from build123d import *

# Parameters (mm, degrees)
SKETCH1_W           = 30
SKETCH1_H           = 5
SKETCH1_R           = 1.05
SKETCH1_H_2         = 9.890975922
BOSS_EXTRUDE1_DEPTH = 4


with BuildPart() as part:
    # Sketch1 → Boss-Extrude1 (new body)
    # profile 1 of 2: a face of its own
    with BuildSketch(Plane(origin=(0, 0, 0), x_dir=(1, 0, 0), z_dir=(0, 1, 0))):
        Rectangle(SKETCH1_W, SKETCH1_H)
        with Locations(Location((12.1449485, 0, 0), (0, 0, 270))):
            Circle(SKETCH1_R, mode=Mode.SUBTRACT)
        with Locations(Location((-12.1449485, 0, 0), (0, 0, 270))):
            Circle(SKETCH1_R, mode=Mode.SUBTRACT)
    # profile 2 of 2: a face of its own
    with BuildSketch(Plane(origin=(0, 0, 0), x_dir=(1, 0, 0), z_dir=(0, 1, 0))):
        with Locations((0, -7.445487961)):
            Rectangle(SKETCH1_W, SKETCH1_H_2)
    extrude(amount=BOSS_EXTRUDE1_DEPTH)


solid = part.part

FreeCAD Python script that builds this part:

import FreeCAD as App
import Part
import Sketcher
from FreeCAD import Vector
Q = App.Units.Quantity

doc = App.newDocument("Part")
body = doc.addObject("PartDesign::Body", "Body")

# Sketch on XZ plane
sketch1 = body.newObject("Sketcher::SketchObject", "Sketch")
sketch1.AttachmentSupport = (doc.getObject("XZ_Plane"), [""])
sketch1.MapMode = "FlatFace"
sketch1.addGeometry(Part.LineSegment(Vector(-15, -2.5, 0), Vector(-15, 12.4, 0)), False)
sketch1.addGeometry(Part.LineSegment(Vector(-15, 12.4, 0), Vector(15, 12.4, 0)), False)
sketch1.addGeometry(Part.LineSegment(Vector(15, 12.4, 0), Vector(15, -2.5, 0)), False)
sketch1.addGeometry(Part.LineSegment(Vector(15, -2.5, 0), Vector(-15, -2.5, 0)), False)
sketch1.addGeometry(Part.Circle(Vector(-12.1, 0, 0), Vector(0, 0, 1), 1.1), False)
sketch1.addGeometry(Part.Circle(Vector(12.1, 0, 0), Vector(0, 0, 1), 1.1), False)
sketch1.addConstraint(Sketcher.Constraint("Coincident", 0, 2, 1, 1))
sketch1.addConstraint(Sketcher.Constraint("Coincident", 1, 2, 2, 1))
sketch1.addConstraint(Sketcher.Constraint("Coincident", 2, 2, 3, 1))
sketch1.addConstraint(Sketcher.Constraint("Coincident", 3, 2, 0, 1))
sketch1.addConstraint(Sketcher.Constraint("Vertical", 0))
sketch1.addConstraint(Sketcher.Constraint("Horizontal", 1))
sketch1.addConstraint(Sketcher.Constraint("Vertical", 2))
sketch1.addConstraint(Sketcher.Constraint("Horizontal", 3))
sketch1.addConstraint(Sketcher.Constraint("Equal", 4, 5))
sketch1.addConstraint(Sketcher.Constraint("Symmetric", 4, 3, 5, 3, -1, 1))
sketch1.addConstraint(Sketcher.Constraint("PointOnObject", 4, 3, -1))
sketch1.addConstraint(Sketcher.Constraint("Diameter", 4, Q("2.1 mm")))
sketch1.addConstraint(Sketcher.Constraint("DistanceX", 1, 1, 1, 2, Q("30 mm")))
sketch1.addConstraint(Sketcher.Constraint("DistanceX", 0, 2, -1, 1, Q("15 mm")))
sketch1.addConstraint(Sketcher.Constraint("DistanceY", 2, 2, -1, 1, Q("2.5 mm")))
sketch1.addConstraint(Sketcher.Constraint("DistanceY", 0, 1, 0, 2, Q("14.890976 mm")))
sketch1.addConstraint(Sketcher.Constraint("DistanceX", 4, 3, -1, 1, Q("12.144948 mm")))
pad1 = body.newObject("PartDesign::Pad", "Pad")
pad1.Profile = sketch1
pad1.Length = 4
pad1.Reversed = True

doc.recompute()
